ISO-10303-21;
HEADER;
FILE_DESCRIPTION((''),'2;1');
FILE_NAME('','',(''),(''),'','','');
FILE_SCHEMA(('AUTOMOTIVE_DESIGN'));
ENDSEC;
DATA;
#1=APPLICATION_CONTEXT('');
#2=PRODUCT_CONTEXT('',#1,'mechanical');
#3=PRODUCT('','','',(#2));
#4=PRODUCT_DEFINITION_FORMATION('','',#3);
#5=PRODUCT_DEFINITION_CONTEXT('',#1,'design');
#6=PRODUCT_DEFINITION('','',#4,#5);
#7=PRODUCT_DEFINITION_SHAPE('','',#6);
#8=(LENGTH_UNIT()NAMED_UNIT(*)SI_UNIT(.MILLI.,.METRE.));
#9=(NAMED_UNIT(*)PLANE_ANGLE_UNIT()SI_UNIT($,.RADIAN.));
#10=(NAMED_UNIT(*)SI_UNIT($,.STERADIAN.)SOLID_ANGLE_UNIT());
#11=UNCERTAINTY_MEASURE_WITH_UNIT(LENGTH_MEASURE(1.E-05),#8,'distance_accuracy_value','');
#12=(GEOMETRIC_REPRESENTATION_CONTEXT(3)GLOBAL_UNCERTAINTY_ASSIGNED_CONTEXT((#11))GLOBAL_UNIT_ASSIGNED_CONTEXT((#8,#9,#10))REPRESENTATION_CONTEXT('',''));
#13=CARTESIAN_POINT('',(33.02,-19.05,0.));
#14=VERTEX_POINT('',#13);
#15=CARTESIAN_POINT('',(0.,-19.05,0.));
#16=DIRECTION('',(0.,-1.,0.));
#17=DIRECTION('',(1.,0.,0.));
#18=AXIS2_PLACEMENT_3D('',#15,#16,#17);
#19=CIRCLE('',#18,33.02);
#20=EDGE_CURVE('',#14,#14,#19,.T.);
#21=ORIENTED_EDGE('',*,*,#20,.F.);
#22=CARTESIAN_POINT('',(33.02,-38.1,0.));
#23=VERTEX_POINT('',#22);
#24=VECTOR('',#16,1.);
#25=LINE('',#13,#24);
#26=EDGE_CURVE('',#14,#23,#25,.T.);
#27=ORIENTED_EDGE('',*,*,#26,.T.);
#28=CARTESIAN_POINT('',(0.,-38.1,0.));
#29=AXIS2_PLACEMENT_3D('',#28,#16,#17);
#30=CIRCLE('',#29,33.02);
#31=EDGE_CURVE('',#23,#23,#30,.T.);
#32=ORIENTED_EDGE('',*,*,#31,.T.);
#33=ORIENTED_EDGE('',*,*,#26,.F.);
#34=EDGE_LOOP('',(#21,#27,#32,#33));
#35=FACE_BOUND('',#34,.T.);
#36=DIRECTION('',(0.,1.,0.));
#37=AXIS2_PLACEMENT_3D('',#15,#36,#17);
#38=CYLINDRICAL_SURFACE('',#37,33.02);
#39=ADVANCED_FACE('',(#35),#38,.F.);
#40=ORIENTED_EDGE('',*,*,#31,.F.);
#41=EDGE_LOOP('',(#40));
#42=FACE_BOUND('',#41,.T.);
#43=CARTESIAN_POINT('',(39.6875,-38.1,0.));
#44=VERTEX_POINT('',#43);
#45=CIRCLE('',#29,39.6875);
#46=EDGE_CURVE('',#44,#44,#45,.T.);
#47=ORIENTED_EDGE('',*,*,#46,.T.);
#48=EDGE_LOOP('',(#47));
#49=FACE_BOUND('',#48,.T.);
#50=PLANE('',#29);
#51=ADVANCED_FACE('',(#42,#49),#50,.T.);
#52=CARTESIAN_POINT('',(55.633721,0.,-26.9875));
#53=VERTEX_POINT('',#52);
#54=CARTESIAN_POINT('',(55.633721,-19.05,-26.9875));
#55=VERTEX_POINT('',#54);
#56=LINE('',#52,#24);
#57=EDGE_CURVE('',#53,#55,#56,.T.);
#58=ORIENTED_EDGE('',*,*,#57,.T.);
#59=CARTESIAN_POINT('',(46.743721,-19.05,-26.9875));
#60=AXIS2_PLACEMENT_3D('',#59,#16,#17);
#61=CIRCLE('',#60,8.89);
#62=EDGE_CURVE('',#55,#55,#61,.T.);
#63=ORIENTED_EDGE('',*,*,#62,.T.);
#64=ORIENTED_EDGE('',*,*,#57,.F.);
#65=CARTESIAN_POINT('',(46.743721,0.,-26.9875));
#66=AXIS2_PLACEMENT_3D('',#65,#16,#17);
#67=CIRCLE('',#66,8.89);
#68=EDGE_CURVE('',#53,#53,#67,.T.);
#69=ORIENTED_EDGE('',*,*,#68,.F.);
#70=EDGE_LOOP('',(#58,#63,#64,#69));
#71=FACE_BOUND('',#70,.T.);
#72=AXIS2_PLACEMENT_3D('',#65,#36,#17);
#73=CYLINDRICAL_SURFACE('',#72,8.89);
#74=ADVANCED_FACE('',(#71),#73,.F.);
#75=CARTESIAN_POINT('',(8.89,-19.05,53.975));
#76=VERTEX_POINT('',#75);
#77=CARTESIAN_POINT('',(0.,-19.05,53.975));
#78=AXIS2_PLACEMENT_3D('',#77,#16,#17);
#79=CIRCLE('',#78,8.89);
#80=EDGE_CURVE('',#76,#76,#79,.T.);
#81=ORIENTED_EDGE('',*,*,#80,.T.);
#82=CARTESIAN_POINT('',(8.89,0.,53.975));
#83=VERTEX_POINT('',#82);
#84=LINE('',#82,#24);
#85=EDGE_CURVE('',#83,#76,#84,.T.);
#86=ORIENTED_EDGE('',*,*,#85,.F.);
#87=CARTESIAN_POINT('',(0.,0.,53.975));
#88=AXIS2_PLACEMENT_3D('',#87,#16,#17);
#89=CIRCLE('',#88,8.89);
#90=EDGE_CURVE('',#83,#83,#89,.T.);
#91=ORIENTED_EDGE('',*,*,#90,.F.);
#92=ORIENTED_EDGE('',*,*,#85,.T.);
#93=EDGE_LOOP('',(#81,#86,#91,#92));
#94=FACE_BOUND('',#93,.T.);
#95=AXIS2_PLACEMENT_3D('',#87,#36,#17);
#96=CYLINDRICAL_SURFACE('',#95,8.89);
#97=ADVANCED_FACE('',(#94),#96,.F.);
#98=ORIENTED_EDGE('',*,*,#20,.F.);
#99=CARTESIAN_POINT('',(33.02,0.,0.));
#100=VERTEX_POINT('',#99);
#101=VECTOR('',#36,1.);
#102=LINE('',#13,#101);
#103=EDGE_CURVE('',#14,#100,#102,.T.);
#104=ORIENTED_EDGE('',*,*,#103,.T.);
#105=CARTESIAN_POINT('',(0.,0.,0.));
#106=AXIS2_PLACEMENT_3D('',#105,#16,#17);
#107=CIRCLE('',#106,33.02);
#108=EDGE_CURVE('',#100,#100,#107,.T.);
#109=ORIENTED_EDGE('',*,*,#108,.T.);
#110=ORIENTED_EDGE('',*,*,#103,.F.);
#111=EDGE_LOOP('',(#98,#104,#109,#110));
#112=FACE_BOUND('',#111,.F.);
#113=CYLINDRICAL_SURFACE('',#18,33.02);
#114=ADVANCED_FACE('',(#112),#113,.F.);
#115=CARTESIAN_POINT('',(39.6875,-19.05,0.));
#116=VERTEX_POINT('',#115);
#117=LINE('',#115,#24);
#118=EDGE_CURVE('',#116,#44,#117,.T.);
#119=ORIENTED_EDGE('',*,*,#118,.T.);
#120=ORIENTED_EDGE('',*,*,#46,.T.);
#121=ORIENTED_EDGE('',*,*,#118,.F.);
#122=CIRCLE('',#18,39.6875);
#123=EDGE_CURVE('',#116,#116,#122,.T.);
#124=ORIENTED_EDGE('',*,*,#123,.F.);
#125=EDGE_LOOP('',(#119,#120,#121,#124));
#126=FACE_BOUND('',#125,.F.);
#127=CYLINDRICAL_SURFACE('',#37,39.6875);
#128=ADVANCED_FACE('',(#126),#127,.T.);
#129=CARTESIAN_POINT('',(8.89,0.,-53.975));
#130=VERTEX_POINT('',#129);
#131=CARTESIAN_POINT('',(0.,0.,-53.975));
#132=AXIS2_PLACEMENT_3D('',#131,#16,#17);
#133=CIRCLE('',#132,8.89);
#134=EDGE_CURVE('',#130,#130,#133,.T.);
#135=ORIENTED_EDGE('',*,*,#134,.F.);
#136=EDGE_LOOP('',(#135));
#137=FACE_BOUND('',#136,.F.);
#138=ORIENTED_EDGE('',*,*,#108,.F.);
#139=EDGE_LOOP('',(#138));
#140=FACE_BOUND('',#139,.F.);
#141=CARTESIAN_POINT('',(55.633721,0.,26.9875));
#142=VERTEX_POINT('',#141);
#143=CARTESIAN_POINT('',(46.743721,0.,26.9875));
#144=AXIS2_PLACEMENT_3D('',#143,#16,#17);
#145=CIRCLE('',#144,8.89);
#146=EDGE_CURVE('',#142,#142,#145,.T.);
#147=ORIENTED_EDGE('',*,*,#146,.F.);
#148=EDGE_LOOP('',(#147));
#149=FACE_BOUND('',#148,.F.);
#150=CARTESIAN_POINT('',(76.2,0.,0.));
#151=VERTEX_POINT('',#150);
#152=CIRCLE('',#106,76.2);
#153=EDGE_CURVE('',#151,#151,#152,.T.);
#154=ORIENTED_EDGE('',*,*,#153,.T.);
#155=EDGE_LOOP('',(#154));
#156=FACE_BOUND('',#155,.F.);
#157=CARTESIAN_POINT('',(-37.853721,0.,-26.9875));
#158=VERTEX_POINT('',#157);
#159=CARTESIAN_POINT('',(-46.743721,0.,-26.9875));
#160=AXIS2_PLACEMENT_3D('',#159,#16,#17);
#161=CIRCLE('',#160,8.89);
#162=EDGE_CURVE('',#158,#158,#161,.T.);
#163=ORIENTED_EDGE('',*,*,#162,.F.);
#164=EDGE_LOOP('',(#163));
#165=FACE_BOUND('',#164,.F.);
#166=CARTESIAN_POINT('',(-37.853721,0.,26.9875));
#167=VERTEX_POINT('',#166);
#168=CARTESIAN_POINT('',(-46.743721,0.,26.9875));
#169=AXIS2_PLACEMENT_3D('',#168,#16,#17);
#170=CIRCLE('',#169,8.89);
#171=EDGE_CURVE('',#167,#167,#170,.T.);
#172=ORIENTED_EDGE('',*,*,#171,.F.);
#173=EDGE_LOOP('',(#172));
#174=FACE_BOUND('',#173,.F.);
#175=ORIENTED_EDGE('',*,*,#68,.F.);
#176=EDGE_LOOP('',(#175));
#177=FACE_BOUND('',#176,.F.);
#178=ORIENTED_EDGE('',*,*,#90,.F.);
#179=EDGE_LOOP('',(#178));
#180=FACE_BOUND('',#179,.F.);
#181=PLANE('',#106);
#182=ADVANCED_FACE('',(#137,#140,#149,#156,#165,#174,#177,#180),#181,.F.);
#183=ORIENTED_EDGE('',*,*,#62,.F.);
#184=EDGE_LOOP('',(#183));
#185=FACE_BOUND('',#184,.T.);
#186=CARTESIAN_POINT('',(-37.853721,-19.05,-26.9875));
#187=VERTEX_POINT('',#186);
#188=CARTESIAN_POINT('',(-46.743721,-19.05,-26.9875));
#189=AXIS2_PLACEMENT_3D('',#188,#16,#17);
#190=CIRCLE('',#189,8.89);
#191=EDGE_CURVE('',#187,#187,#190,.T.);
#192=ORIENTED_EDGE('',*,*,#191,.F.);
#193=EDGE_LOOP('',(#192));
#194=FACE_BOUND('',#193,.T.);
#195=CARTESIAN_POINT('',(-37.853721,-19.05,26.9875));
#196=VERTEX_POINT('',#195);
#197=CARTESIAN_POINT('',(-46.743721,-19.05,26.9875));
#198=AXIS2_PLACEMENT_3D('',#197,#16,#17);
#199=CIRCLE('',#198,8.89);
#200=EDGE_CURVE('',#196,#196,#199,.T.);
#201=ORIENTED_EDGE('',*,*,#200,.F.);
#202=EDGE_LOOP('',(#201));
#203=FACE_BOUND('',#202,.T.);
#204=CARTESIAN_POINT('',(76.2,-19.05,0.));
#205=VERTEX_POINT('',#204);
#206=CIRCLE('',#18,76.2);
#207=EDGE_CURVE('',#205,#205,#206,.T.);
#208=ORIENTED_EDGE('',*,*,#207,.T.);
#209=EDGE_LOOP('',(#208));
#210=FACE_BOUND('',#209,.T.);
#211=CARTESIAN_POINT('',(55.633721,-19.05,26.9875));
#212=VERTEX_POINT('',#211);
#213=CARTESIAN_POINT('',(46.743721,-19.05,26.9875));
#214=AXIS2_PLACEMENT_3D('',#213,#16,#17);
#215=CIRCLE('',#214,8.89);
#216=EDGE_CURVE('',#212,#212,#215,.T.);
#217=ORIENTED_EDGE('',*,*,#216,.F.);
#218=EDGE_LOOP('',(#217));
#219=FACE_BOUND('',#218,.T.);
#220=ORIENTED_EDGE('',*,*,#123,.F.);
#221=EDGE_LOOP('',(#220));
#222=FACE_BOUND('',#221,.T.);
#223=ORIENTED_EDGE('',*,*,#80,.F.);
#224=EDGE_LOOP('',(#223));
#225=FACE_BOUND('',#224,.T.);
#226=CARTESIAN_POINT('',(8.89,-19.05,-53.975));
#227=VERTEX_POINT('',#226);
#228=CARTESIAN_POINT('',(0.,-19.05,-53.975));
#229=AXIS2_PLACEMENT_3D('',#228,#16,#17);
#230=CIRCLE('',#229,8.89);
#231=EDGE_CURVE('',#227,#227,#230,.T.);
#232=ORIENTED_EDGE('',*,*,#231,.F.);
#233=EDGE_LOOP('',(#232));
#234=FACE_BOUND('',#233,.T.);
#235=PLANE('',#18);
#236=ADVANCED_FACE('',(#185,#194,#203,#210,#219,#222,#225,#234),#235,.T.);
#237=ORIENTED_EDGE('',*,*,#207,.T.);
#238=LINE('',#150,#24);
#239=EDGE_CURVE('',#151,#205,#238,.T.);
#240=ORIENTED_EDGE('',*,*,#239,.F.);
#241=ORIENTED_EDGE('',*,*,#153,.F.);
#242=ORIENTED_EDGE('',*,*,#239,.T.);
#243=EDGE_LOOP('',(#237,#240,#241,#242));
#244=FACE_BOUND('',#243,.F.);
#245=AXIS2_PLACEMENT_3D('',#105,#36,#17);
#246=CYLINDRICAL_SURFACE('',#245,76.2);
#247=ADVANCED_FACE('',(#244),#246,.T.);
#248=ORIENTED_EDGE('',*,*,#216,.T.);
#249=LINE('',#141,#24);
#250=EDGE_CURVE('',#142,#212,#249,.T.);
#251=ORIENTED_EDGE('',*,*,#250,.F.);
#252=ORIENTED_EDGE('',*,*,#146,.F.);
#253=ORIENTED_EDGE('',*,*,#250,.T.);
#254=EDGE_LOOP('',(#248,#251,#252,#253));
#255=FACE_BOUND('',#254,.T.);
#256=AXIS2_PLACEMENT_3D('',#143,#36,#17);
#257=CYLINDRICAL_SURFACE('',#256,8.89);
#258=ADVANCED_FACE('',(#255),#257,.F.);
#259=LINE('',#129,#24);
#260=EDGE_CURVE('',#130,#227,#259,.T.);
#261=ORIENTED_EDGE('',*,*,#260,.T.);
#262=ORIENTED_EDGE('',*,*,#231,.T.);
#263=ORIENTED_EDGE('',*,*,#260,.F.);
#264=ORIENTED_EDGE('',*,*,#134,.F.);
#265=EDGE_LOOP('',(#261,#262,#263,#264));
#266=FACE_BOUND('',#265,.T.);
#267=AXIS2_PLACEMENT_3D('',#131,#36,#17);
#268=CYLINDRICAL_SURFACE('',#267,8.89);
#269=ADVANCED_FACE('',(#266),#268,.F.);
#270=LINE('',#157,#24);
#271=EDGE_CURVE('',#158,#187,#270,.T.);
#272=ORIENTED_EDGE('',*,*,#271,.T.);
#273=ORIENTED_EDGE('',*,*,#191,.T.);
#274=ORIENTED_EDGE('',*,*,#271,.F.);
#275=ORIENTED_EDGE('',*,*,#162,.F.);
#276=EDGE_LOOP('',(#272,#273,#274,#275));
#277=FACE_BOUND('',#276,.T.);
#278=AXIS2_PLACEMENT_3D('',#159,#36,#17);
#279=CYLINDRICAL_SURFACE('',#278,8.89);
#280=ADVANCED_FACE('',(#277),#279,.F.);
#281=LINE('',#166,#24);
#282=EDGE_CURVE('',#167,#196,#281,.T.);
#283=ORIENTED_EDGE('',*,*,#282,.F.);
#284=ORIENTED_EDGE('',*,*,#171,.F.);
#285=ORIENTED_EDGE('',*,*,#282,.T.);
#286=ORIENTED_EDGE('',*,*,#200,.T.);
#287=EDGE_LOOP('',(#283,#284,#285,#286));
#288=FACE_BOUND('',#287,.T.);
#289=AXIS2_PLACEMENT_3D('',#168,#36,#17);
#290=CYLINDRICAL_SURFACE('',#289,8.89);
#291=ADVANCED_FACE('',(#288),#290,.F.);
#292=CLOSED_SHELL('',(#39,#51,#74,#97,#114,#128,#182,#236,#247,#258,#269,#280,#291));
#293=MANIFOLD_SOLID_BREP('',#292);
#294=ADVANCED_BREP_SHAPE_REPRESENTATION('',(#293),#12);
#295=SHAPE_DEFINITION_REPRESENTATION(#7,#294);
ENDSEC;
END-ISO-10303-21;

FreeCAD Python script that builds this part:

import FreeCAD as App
import Part
import Sketcher

V = App.Vector
Q = App.Units.Quantity

doc = App.newDocument("Part")
body = doc.addObject("PartDesign::Body", "Body")

sketch1 = doc.addObject("Sketcher::SketchObject", "Sketch")
body.addObject(sketch1)
sketch1.AttachmentSupport = (doc.XZ_Plane, [""])
sketch1.MapMode = "FlatFace"
sketch1.addGeometry([
    Part.Circle(V(0, 0, 0), V(0, 0, 1), 76),
    Part.Circle(V(-47, -27, 0), V(0, 0, 1), 9),
    Part.Circle(V(0, -54, 0), V(0, 0, 1), 9),
    Part.Circle(V(47, -27, 0), V(0, 0, 1), 9),
    Part.Circle(V(-47, 27, 0), V(0, 0, 1), 9),
    Part.Circle(V(47, 27, 0), V(0, 0, 1), 9),
    Part.Circle(V(0, 54, 0), V(0, 0, 1), 9),
], False)
sketch1.addConstraint([
    Sketcher.Constraint("Coincident", 0, 3, -1, 1),
    Sketcher.Constraint("Equal", 1, 2),
    Sketcher.Constraint("Equal", 2, 3),
    Sketcher.Constraint("Equal", 3, 4),
    Sketcher.Constraint("Equal", 4, 5),
    Sketcher.Constraint("Equal", 5, 6),
    Sketcher.Constraint("Symmetric", 3, 3, 4, 3, -1, 1),
    Sketcher.Constraint("Symmetric", 1, 3, 5, 3, -1, 1),
    Sketcher.Constraint("Symmetric", 2, 3, 6, 3, -1, 1),
    Sketcher.Constraint("Symmetric", 1, 3, 3, 3, -2),
    Sketcher.Constraint("PointOnObject", 2, 3, -2),
    Sketcher.Constraint("Diameter", 0, Q("6 in")),
    Sketcher.Constraint("Diameter", 1, Q("0.7 in")),
    Sketcher.Constraint("DistanceY", 1, 3, -1, 1, Q("1.0625 in")),
    Sketcher.Constraint("DistanceY", 2, 3, -1, 1, Q("2.125 in")),
    Sketcher.Constraint("DistanceX", 1, 3, -1, 1, Q("46.743721 mm")),
])
pad1 = doc.addObject("PartDesign::Pad", "Pad")
body.addObject(pad1)
pad1.Profile = sketch1
pad1.Length = Q("0.75 in")

sketch2 = doc.addObject("Sketcher::SketchObject", "Sketch001")
body.addObject(sketch2)
sketch2.AttachmentSupport = (doc.XZ_Plane, [""])
sketch2.MapMode = "FlatFace"
sketch2.AttachmentOffset = App.Placement(V(0, 0, 0.75 * 25.4), App.Rotation())
sketch2.addGeometry([
    Part.Circle(V(0, 0, 0), V(0, 0, 1), 40),
    Part.Circle(V(0, 0, 0), V(0, 0, 1), 33),
], False)
sketch2.addConstraint([
    Sketcher.Constraint("Coincident", 0, 3, -1, 1),
    Sketcher.Constraint("Coincident", 1, 3, -1, 1),
    Sketcher.Constraint("Diameter", 1, Q("2.6 in")),
    Sketcher.Constraint("Diameter", 0, Q("3.125 in")),
])
pad2 = doc.addObject("PartDesign::Pad", "Pad001")
body.addObject(pad2)
pad2.Profile = sketch2
pad2.Length = Q("0.75 in")

sketch3 = doc.addObject("Sketcher::SketchObject", "Sketch002")
body.addObject(sketch3)
sketch3.AttachmentSupport = (doc.XZ_Plane, [""])
sketch3.MapMode = "FlatFace"
sketch3.AttachmentOffset = App.Placement(V(0, 0, 0.75 * 25.4), App.Rotation())
sketch3.addGeometry(Part.Circle(V(0, 0, 0), V(0, 0, 1), 33), False)
sketch3.addConstraint([
    Sketcher.Constraint("Coincident", 0, 3, -1, 1),
    Sketcher.Constraint("Diameter", 0, Q("2.6 in")),
])
pocket1 = doc.addObject("PartDesign::Pocket", "Pocket")
body.addObject(pocket1)
pocket1.Profile = sketch3
pocket1.Length = Q("1 in")

doc.recompute()
